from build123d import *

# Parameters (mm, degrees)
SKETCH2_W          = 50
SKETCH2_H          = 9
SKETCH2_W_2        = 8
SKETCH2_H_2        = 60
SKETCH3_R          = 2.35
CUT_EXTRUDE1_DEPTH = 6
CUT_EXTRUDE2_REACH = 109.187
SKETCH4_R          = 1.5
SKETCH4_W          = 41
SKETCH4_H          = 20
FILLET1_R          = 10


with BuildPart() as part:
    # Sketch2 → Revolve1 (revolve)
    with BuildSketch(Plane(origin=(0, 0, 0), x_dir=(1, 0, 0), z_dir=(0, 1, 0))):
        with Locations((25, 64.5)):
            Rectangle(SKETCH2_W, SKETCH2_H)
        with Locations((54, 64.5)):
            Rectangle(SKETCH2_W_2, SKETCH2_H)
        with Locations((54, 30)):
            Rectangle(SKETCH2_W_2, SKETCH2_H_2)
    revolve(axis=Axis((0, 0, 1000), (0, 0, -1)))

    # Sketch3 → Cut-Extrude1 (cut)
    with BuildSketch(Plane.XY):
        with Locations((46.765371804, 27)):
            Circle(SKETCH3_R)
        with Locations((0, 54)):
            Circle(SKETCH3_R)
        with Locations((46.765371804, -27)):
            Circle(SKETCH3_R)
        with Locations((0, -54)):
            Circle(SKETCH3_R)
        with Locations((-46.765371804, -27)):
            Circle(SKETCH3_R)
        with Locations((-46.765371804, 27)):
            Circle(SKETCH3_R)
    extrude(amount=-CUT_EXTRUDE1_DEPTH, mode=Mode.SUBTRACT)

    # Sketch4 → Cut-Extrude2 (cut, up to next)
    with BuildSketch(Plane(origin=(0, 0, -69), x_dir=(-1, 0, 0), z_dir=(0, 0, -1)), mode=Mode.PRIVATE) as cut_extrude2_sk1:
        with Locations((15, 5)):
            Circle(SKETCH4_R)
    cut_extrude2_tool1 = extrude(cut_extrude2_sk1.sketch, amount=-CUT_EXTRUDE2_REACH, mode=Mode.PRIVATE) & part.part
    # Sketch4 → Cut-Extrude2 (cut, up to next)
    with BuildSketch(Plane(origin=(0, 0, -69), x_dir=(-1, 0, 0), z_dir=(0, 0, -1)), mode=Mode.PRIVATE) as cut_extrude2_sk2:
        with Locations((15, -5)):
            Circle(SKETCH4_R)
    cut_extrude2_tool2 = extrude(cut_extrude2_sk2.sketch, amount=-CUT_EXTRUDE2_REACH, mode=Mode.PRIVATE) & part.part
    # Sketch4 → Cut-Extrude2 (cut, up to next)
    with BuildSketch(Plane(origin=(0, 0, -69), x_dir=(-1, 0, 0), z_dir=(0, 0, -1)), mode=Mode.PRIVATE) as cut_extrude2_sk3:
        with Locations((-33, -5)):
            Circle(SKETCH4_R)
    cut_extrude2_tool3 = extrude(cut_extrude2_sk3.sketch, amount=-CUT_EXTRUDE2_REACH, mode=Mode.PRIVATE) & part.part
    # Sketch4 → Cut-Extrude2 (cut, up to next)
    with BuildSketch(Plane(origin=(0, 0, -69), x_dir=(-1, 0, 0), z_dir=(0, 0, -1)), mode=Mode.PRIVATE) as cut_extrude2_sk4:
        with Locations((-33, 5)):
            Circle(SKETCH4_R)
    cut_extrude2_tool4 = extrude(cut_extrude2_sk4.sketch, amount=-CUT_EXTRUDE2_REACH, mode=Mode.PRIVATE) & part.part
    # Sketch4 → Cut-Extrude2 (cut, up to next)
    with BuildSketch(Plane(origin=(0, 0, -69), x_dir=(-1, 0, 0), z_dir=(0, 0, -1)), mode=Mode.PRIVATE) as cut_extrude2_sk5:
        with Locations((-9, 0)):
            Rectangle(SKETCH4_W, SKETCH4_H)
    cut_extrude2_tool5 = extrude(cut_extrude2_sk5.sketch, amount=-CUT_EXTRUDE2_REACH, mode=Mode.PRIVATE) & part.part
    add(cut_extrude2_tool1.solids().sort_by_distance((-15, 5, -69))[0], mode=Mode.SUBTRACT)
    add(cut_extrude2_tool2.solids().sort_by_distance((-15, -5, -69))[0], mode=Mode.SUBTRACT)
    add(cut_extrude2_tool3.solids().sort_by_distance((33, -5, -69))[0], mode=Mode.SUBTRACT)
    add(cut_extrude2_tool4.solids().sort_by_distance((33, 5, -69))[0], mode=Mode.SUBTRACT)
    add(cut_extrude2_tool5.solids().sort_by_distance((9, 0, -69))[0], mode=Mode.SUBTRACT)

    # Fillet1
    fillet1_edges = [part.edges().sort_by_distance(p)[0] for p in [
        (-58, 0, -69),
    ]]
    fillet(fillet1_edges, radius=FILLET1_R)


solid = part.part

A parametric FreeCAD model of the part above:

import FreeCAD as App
import Part
import Sketcher


def edges_at(feature, points):
    """Names of the edges that pass closest to the given points."""
    edges = feature.Shape.Edges
    near = lambda p: min(range(len(edges)), key=lambda i: edges[i].distToShape(Part.Vertex(*p))[0])
    return sorted({f"Edge{near(p) + 1}" for p in points})

doc = App.newDocument("Part")
body = doc.addObject("PartDesign::Body", "Body")

# Sketch on XZ plane
sketch1 = doc.addObject("Sketcher::SketchObject", "Sketch")
body.addObject(sketch1)
sketch1.AttachmentSupport = (doc.XZ_Plane, [""])
sketch1.MapMode = "FlatFace"
sketch1.addGeometry(Part.LineSegment(App.Vector(0, -69, 0), App.Vector(0, -60, 0)), False)
sketch1.addGeometry(Part.LineSegment(App.Vector(0, -60, 0), App.Vector(50, -60, 0)), False)
sketch1.addGeometry(Part.LineSegment(App.Vector(50, -60, 0), App.Vector(50, 0, 0)), False)
sketch1.addGeometry(Part.LineSegment(App.Vector(50, 0, 0), App.Vector(58, 0, 0)), False)
sketch1.addGeometry(Part.LineSegment(App.Vector(58, 0, 0), App.Vector(58, -69, 0)), False)
sketch1.addGeometry(Part.LineSegment(App.Vector(58, -69, 0), App.Vector(0, -69, 0)), False)
sketch1.addConstraint(Sketcher.Constraint("Coincident", 0, 2, 1, 1))
sketch1.addConstraint(Sketcher.Constraint("Coincident", 1, 2, 2, 1))
sketch1.addConstraint(Sketcher.Constraint("Coincident", 2, 2, 3, 1))
sketch1.addConstraint(Sketcher.Constraint("Coincident", 3, 2, 4, 1))
sketch1.addConstraint(Sketcher.Constraint("Coincident", 4, 2, 5, 1))
sketch1.addConstraint(Sketcher.Constraint("Coincident", 5, 2, 0, 1))
sketch1.addConstraint(Sketcher.Constraint("Vertical", 0))
sketch1.addConstraint(Sketcher.Constraint("Horizontal", 1))
sketch1.addConstraint(Sketcher.Constraint("Vertical", 2))
sketch1.addConstraint(Sketcher.Constraint("Horizontal", 3))
sketch1.addConstraint(Sketcher.Constraint("Vertical", 4))
sketch1.addConstraint(Sketcher.Constraint("Horizontal", 5))
sketch1.addConstraint(Sketcher.Constraint("PointOnObject", 0, 2, -2))
sketch1.addConstraint(Sketcher.Constraint("PointOnObject", 2, 2, -1))
sketch1.addConstraint(Sketcher.Constraint("DistanceX", 1, 1, 1, 2, 50.0))
sketch1.addConstraint(Sketcher.Constraint("DistanceX", 3, 1, 3, 2, 8.0))
sketch1.addConstraint(Sketcher.Constraint("DistanceY", 0, 1, 0, 2, 9.0))
sketch1.addConstraint(Sketcher.Constraint("DistanceY", 2, 1, 2, 2, 60.0))
revolution = doc.addObject("PartDesign::Revolution", "Revolution")
body.addObject(revolution)
revolution.Profile = sketch1
revolution.ReferenceAxis = (sketch1, ["V_Axis"])
revolution.Angle = 360

# Sketch on XY plane
sketch2 = doc.addObject("Sketcher::SketchObject", "Sketch001")
body.addObject(sketch2)
sketch2.AttachmentSupport = (doc.XY_Plane, [""])
sketch2.MapMode = "FlatFace"
sketch2.addGeometry(Part.Circle(App.Vector(46.765372, 27, 0), App.Vector(0, 0, 1), 2.35), False)
sketch2.addGeometry(Part.Circle(App.Vector(0, 54, 0), App.Vector(0, 0, 1), 2.35), False)
sketch2.addGeometry(Part.Circle(App.Vector(46.765372, -27, 0), App.Vector(0, 0, 1), 2.35), False)
sketch2.addGeometry(Part.Circle(App.Vector(0, -54, 0), App.Vector(0, 0, 1), 2.35), False)
sketch2.addGeometry(Part.Circle(App.Vector(-46.765372, -27, 0), App.Vector(0, 0, 1), 2.35), False)
sketch2.addGeometry(Part.Circle(App.Vector(-46.765372, 27, 0), App.Vector(0, 0, 1), 2.35), False)
sketch2.addConstraint(Sketcher.Constraint("Equal", 0, 1))
sketch2.addConstraint(Sketcher.Constraint("Equal", 1, 2))
sketch2.addConstraint(Sketcher.Constraint("Equal", 2, 3))
sketch2.addConstraint(Sketcher.Constraint("Equal", 3, 4))
sketch2.addConstraint(Sketcher.Constraint("Equal", 4, 5))
sketch2.addConstraint(Sketcher.Constraint("Symmetric", 1, 3, 3, 3, -1, 1))
sketch2.addConstraint(Sketcher.Constraint("Symmetric", 0, 3, 4, 3, -1, 1))
sketch2.addConstraint(Sketcher.Constraint("Symmetric", 2, 3, 5, 3, -1, 1))
sketch2.addConstraint(Sketcher.Constraint("Symmetric", 2, 3, 4, 3, -2))
sketch2.addConstraint(Sketcher.Constraint("PointOnObject", 1, 3, -2))
sketch2.addConstraint(Sketcher.Constraint("Diameter", 0, 4.7))
sketch2.addConstraint(Sketcher.Constraint("DistanceY", -1, 1, 0, 3, 27.0))
sketch2.addConstraint(Sketcher.Constraint("DistanceY", -1, 1, 1, 3, 54.0))
sketch2.addConstraint(Sketcher.Constraint("DistanceX", -1, 1, 0, 3, 46.765372))
pocket1 = doc.addObject("PartDesign::Pocket", "Pocket")
body.addObject(pocket1)
pocket1.Profile = sketch2
pocket1.Length = 6

# Sketch on XY plane
sketch3 = doc.addObject("Sketcher::SketchObject", "Sketch002")
body.addObject(sketch3)
sketch3.AttachmentSupport = (doc.XY_Plane, [""])
sketch3.MapMode = "FlatFace"
sketch3.AttachmentOffset = App.Placement(App.Vector(0, 0, -69), App.Rotation())
sketch3.addGeometry(Part.Circle(App.Vector(-15, 5, 0), App.Vector(0, 0, 1), 1.5), False)
sketch3.addConstraint(Sketcher.Constraint("Diameter", 0, 3.0))
sketch3.addConstraint(Sketcher.Constraint("DistanceX", 0, 3, -1, 1, 15.0))
sketch3.addConstraint(Sketcher.Constraint("DistanceY", -1, 1, 0, 3, 5.0))
pocket2 = doc.addObject("PartDesign::Pocket", "Pocket001")
body.addObject(pocket2)
pocket2.Profile = sketch3
pocket2.Type = "UpToFirst"
pocket2.Reversed = True

# Sketch on XY plane
sketch4 = doc.addObject("Sketcher::SketchObject", "Sketch003")
body.addObject(sketch4)
sketch4.AttachmentSupport = (doc.XY_Plane, [""])
sketch4.MapMode = "FlatFace"
sketch4.AttachmentOffset = App.Placement(App.Vector(0, 0, -69), App.Rotation())
sketch4.addGeometry(Part.Circle(App.Vector(-15, -5, 0), App.Vector(0, 0, 1), 1.5), False)
sketch4.addConstraint(Sketcher.Constraint("Diameter", 0, 3.0))
sketch4.addConstraint(Sketcher.Constraint("DistanceX", 0, 3, -1, 1, 15.0))
sketch4.addConstraint(Sketcher.Constraint("DistanceY", 0, 3, -1, 1, 5.0))
pocket3 = doc.addObject("PartDesign::Pocket", "Pocket002")
body.addObject(pocket3)
pocket3.Profile = sketch4
pocket3.Type = "UpToFirst"
pocket3.Reversed = True

# Sketch on XY plane
sketch5 = doc.addObject("Sketcher::SketchObject", "Sketch004")
body.addObject(sketch5)
sketch5.AttachmentSupport = (doc.XY_Plane, [""])
sketch5.MapMode = "FlatFace"
sketch5.AttachmentOffset = App.Placement(App.Vector(0, 0, -69), App.Rotation())
sketch5.addGeometry(Part.Circle(App.Vector(33, -5, 0), App.Vector(0, 0, 1), 1.5), False)
sketch5.addConstraint(Sketcher.Constraint("Diameter", 0, 3.0))
sketch5.addConstraint(Sketcher.Constraint("DistanceX", -1, 1, 0, 3, 33.0))
sketch5.addConstraint(Sketcher.Constraint("DistanceY", 0, 3, -1, 1, 5.0))
pocket4 = doc.addObject("PartDesign::Pocket", "Pocket003")
body.addObject(pocket4)
pocket4.Profile = sketch5
pocket4.Type = "UpToFirst"
pocket4.Reversed = True

# Sketch on XY plane
sketch6 = doc.addObject("Sketcher::SketchObject", "Sketch005")
body.addObject(sketch6)
sketch6.AttachmentSupport = (doc.XY_Plane, [""])
sketch6.MapMode = "FlatFace"
sketch6.AttachmentOffset = App.Placement(App.Vector(0, 0, -69), App.Rotation())
sketch6.addGeometry(Part.Circle(App.Vector(33, 5, 0), App.Vector(0, 0, 1), 1.5), False)
sketch6.addConstraint(Sketcher.Constraint("Diameter", 0, 3.0))
sketch6.addConstraint(Sketcher.Constraint("DistanceX", -1, 1, 0, 3, 33.0))
sketch6.addConstraint(Sketcher.Constraint("DistanceY", -1, 1, 0, 3, 5.0))
pocket5 = doc.addObject("PartDesign::Pocket", "Pocket004")
body.addObject(pocket5)
pocket5.Profile = sketch6
pocket5.Type = "UpToFirst"
pocket5.Reversed = True

# Sketch on XY plane
sketch7 = doc.addObject("Sketcher::SketchObject", "Sketch006")
body.addObject(sketch7)
sketch7.AttachmentSupport = (doc.XY_Plane, [""])
sketch7.MapMode = "FlatFace"
sketch7.AttachmentOffset = App.Placement(App.Vector(0, 0, -69), App.Rotation())
sketch7.addGeometry(Part.LineSegment(App.Vector(29.5, 10, 0), App.Vector(29.5, -10, 0)), False)
sketch7.addGeometry(Part.LineSegment(App.Vector(29.5, -10, 0), App.Vector(-11.5, -10, 0)), False)
sketch7.addGeometry(Part.LineSegment(App.Vector(-11.5, -10, 0), App.Vector(-11.5, 10, 0)), False)
sketch7.addGeometry(Part.LineSegment(App.Vector(-11.5, 10, 0), App.Vector(29.5, 10, 0)), False)
sketch7.addConstraint(Sketcher.Constraint("Coincident", 0, 2, 1, 1))
sketch7.addConstraint(Sketcher.Constraint("Coincident", 1, 2, 2, 1))
sketch7.addConstraint(Sketcher.Constraint("Coincident", 2, 2, 3, 1))
sketch7.addConstraint(Sketcher.Constraint("Coincident", 3, 2, 0, 1))
sketch7.addConstraint(Sketcher.Constraint("Vertical", 0))
sketch7.addConstraint(Sketcher.Constraint("Horizontal", 1))
sketch7.addConstraint(Sketcher.Constraint("Vertical", 2))
sketch7.addConstraint(Sketcher.Constraint("Horizontal", 3))
sketch7.addConstraint(Sketcher.Constraint("DistanceX", 1, 2, 1, 1, 41.0))
sketch7.addConstraint(Sketcher.Constraint("DistanceY", 0, 2, 0, 1, 20.0))
sketch7.addConstraint(Sketcher.Constraint("DistanceY", 0, 2, -1, 1, 10.0))
sketch7.addConstraint(Sketcher.Constraint("DistanceX", -1, 1, 0, 2, 29.5))
pocket6 = doc.addObject("PartDesign::Pocket", "Pocket005")
body.addObject(pocket6)
pocket6.Profile = sketch7
pocket6.Type = "UpToFirst"
pocket6.Reversed = True
doc.recompute()

fillet = doc.addObject("PartDesign::Fillet", "Fillet")
body.addObject(fillet)
fillet.Base = (pocket6, edges_at(pocket6, [(-58, 0, -69)]))
fillet.Radius = 10

doc.recompute()
